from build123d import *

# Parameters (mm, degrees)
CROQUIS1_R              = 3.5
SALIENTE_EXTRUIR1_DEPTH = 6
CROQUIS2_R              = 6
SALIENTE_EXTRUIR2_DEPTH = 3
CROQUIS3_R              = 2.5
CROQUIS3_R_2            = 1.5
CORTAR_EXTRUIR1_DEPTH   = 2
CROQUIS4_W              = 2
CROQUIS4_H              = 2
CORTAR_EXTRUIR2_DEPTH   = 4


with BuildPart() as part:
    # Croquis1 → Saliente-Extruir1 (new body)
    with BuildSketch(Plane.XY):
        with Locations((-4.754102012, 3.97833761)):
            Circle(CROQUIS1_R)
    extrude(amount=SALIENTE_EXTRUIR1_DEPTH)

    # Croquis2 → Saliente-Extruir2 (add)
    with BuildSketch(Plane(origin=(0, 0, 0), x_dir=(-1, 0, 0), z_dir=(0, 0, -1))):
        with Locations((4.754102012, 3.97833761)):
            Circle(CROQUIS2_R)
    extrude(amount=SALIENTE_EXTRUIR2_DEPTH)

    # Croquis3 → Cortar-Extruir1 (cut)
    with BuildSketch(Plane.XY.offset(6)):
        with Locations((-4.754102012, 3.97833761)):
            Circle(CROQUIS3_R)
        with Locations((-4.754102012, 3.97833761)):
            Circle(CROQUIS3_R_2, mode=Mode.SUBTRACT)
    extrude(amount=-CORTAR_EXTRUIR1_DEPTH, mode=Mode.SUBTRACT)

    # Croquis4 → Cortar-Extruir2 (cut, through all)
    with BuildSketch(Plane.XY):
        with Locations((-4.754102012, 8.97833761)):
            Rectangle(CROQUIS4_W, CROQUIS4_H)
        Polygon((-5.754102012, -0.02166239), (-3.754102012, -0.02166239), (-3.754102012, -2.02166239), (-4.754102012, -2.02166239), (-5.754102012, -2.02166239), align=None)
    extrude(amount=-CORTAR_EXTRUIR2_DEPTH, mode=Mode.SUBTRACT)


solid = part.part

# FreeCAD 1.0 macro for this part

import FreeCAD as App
import Part
import Sketcher
from FreeCAD import Vector
Q = App.Units.Quantity

doc = App.newDocument("Part")
body = doc.addObject("PartDesign::Body", "Body")

sketch1 = body.newObject("Sketcher::SketchObject", "Sketch")
sketch1.AttachmentSupport = (doc.getObject("XY_Plane"), [""])
sketch1.MapMode = "FlatFace"
sketch1.addGeometry(Part.Circle(Vector(-4.8, 4, 0), Vector(0, 0, 1), 3.5), False)
sketch1.addConstraint([
    Sketcher.Constraint("Diameter", 0, Q("7 mm")),
    Sketcher.Constraint("DistanceX", 0, 3, -1, 1, Q("4.754102 mm")),
    Sketcher.Constraint("DistanceY", -1, 1, 0, 3, Q("3.978338 mm")),
])
pad1 = body.newObject("PartDesign::Pad", "Pad")
pad1.Profile = sketch1
pad1.Length = 6

sketch2 = body.newObject("Sketcher::SketchObject", "Sketch001")
sketch2.AttachmentSupport = (doc.getObject("XY_Plane"), [""])
sketch2.MapMode = "FlatFace"
sketch2.addGeometry(Part.Circle(Vector(-5, 4, 0), Vector(0, 0, 1), 6), False)
sketch2.addConstraint([
    Sketcher.Constraint("Diameter", 0, Q("12 mm")),
    Sketcher.Constraint("DistanceX", 0, 3, -1, 1, Q("4.754102 mm")),
    Sketcher.Constraint("DistanceY", -1, 1, 0, 3, Q("3.978338 mm")),
])
pad2 = body.newObject("PartDesign::Pad", "Pad001")
pad2.Profile = sketch2
pad2.Length = 3
pad2.Reversed = True

sketch3 = body.newObject("Sketcher::SketchObject", "Sketch002")
sketch3.AttachmentSupport = (doc.getObject("XY_Plane"), [""])
sketch3.MapMode = "FlatFace"
sketch3.AttachmentOffset = App.Placement(Vector(0, 0, 6), App.Rotation())
sketch3.addGeometry([
    Part.Circle(Vector(-4.8, 4, 0), Vector(0, 0, 1), 2.5),
    Part.Circle(Vector(-4.8, 4, 0), Vector(0, 0, 1), 1.5),
], False)
sketch3.addConstraint([
    Sketcher.Constraint("Coincident", 1, 3, 0, 3),
    Sketcher.Constraint("Diameter", 0, Q("5 mm")),
    Sketcher.Constraint("Diameter", 1, Q("3 mm")),
    Sketcher.Constraint("DistanceX", 0, 3, -1, 1, Q("4.754102 mm")),
    Sketcher.Constraint("DistanceY", -1, 1, 0, 3, Q("3.978338 mm")),
])
pocket1 = body.newObject("PartDesign::Pocket", "Pocket")
pocket1.Profile = sketch3
pocket1.Length = 2

sketch4 = body.newObject("Sketcher::SketchObject", "Sketch003")
sketch4.AttachmentSupport = (doc.getObject("XY_Plane"), [""])
sketch4.MapMode = "FlatFace"
sketch4.addGeometry([
    Part.LineSegment(Vector(-5.8, 10, 0), Vector(-5.8, 8, 0)),
    Part.LineSegment(Vector(-5.8, 8, 0), Vector(-3.8, 8, 0)),
    Part.LineSegment(Vector(-3.8, 8, 0), Vector(-3.8, 10, 0)),
    Part.LineSegment(Vector(-3.8, 10, 0), Vector(-5.8, 10, 0)),
    Part.LineSegment(Vector(-3.8, 0, 0), Vector(-5.8, 0, 0)),
    Part.LineSegment(Vector(-5.8, 0, 0), Vector(-5.8, -2, 0)),
    Part.LineSegment(Vector(-5.8, -2, 0), Vector(-3.8, -2, 0)),
    Part.LineSegment(Vector(-3.8, -2, 0), Vector(-3.8, 0, 0)),
], False)
sketch4.addConstraint([
    Sketcher.Constraint("Coincident", 0, 2, 1, 1),
    Sketcher.Constraint("Coincident", 1, 2, 2, 1),
    Sketcher.Constraint("Coincident", 2, 2, 3, 1),
    Sketcher.Constraint("Coincident", 3, 2, 0, 1),
    Sketcher.Constraint("Coincident", 4, 2, 5, 1),
    Sketcher.Constraint("Coincident", 5, 2, 6, 1),
    Sketcher.Constraint("Coincident", 6, 2, 7, 1),
    Sketcher.Constraint("Coincident", 7, 2, 4, 1),
    Sketcher.Constraint("Vertical", 0),
    Sketcher.Constraint("Horizontal", 1),
    Sketcher.Constraint("Vertical", 2),
    Sketcher.Constraint("Horizontal", 3),
    Sketcher.Constraint("Horizontal", 4),
    Sketcher.Constraint("Vertical", 5),
    Sketcher.Constraint("Horizontal", 6),
    Sketcher.Constraint("Vertical", 7),
    Sketcher.Constraint("Vertical", 3, 2, 4, 2),
    Sketcher.Constraint("Vertical", 2, 2, 6, 2),
    Sketcher.Constraint("Equal", 6, 0),
    Sketcher.Constraint("Equal", 2, 5),
    Sketcher.Constraint("DistanceX", 1, 1, 1, 2, Q("2 mm")),
    Sketcher.Constraint("DistanceY", 4, 2, 0, 2, Q("8 mm")),
    Sketcher.Constraint("DistanceX", 0, 2, -1, 1, Q("5.754102 mm")),
    Sketcher.Constraint("DistanceY", -1, 1, 0, 2, Q("7.978338 mm")),
])
pocket2 = body.newObject("PartDesign::Pocket", "Pocket001")
pocket2.Profile = sketch4
pocket2.Type = "ThroughAll"

doc.recompute()
